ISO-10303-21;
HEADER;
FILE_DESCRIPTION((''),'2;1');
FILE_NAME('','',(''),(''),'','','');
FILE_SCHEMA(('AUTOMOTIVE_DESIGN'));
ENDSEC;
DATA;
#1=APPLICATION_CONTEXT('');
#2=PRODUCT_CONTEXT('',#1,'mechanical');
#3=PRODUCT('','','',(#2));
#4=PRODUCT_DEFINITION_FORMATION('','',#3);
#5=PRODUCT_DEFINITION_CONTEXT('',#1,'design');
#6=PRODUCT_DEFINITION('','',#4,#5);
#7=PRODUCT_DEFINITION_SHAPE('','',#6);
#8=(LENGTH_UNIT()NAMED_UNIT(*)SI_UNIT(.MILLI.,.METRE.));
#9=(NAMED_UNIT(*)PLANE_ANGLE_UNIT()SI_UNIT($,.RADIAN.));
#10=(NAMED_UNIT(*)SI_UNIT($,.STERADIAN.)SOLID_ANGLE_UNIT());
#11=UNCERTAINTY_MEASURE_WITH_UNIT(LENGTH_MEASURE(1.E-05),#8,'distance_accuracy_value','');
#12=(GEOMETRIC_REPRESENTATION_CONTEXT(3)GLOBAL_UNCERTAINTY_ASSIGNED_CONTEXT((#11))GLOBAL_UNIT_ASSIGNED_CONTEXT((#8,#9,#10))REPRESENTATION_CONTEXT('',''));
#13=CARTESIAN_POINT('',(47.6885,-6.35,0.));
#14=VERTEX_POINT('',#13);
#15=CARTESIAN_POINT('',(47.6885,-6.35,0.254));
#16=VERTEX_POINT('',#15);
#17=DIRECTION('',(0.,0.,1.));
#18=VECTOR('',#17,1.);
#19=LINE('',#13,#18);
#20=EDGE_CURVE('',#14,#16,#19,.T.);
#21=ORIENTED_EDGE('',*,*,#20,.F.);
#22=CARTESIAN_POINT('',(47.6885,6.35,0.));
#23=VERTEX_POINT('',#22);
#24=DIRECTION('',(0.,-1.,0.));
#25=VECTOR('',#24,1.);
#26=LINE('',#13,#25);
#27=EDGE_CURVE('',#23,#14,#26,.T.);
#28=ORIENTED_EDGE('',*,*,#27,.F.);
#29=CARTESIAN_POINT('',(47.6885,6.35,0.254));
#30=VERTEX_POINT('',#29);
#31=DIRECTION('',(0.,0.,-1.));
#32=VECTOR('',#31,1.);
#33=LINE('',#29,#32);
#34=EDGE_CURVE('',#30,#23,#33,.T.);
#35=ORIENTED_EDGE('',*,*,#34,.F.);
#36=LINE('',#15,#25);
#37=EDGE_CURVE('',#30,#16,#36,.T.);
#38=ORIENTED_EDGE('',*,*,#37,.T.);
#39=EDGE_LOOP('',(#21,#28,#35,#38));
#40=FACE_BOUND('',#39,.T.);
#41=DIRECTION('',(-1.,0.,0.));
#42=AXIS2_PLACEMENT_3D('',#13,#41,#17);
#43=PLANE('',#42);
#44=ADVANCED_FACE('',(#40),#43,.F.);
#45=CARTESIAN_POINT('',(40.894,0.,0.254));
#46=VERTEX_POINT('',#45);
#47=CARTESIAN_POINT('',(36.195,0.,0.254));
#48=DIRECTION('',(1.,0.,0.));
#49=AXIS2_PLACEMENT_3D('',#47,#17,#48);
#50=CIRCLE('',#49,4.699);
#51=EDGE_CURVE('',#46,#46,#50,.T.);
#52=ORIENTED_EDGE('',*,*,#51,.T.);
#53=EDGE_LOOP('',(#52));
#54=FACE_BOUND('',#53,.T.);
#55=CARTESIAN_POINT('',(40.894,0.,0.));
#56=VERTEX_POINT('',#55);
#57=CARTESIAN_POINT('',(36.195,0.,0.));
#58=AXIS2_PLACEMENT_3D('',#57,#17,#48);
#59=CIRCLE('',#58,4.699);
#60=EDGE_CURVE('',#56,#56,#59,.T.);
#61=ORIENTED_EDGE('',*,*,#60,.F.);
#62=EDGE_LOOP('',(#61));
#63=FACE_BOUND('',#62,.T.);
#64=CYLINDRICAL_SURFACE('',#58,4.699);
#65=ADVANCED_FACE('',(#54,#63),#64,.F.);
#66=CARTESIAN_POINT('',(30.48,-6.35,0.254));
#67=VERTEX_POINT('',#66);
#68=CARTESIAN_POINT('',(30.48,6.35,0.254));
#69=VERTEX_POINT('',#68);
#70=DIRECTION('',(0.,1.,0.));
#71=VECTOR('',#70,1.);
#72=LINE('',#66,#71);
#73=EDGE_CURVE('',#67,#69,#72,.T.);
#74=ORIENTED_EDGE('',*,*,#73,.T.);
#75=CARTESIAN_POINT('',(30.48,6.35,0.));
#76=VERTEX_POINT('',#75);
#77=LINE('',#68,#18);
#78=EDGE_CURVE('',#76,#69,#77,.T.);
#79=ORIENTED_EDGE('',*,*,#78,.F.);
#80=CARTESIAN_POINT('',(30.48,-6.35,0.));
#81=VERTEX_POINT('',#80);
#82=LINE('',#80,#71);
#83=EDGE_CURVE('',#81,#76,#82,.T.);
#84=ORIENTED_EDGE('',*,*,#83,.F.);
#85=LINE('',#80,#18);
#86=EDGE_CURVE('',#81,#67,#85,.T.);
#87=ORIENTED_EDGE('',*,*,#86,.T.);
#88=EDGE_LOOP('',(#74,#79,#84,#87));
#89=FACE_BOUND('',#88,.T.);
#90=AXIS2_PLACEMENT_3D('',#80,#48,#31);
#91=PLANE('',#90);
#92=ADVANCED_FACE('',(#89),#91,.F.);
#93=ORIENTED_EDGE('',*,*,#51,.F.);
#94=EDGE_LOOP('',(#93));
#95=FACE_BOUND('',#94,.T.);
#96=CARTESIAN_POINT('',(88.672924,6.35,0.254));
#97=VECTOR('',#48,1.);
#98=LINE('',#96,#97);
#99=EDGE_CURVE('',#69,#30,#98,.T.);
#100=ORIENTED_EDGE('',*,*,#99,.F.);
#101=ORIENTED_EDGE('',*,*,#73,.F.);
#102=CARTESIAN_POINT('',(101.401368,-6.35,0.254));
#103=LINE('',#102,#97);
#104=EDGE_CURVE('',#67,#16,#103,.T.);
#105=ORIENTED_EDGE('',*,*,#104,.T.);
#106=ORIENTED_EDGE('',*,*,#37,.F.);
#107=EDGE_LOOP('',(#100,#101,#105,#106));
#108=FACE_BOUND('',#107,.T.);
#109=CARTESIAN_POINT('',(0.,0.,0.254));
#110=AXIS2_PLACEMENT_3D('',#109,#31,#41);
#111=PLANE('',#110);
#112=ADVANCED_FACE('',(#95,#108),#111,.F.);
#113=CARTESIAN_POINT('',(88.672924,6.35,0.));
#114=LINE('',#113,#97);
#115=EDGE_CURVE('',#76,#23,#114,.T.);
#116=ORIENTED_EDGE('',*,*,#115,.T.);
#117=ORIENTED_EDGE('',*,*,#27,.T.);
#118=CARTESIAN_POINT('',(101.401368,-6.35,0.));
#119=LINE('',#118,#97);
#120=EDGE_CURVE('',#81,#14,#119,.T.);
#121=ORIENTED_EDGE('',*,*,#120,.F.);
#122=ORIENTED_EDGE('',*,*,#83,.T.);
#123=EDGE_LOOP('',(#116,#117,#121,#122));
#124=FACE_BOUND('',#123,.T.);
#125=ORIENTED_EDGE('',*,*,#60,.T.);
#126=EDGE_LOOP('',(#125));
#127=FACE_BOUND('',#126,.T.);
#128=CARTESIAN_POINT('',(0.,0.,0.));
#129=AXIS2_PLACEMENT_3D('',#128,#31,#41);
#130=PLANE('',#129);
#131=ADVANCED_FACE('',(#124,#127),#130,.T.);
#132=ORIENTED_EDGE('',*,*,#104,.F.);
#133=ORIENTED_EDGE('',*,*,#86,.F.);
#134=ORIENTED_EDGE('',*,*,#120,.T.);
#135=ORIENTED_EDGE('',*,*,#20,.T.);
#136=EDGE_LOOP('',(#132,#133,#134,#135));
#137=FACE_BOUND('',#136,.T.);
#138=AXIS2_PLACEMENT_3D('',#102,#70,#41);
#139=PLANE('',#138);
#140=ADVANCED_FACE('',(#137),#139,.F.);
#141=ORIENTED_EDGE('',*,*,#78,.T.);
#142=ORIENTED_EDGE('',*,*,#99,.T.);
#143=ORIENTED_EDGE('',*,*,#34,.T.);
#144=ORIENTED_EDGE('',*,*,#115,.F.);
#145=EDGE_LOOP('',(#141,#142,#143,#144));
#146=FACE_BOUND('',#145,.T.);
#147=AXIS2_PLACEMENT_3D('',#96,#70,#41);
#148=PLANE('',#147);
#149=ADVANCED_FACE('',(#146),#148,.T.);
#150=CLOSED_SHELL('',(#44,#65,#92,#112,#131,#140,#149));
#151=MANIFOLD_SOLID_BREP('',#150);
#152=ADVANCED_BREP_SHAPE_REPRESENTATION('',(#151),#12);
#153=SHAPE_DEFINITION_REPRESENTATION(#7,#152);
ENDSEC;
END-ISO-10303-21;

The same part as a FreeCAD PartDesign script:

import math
import FreeCAD as App
import Part
import Sketcher
from FreeCAD import Vector
Q = App.Units.Quantity


def add_polygon(sketch, points):
    """Adds a closed chain of lines whose ends are joined by coincident constraints."""
    first, n = sketch.GeometryCount, len(points)
    for a, b in zip(points, points[1:] + points[:1]):
        sketch.addGeometry(Part.LineSegment(App.Vector(*a, 0), App.Vector(*b, 0)), False)
    for i in range(n):
        sketch.addConstraint(Sketcher.Constraint("Coincident", first + i, 2, first + (i + 1) % n, 1))

doc = App.newDocument("Part")
body = doc.addObject("PartDesign::Body", "Body")

# Sketch on XY plane
sketch1 = body.newObject("Sketcher::SketchObject", "Sketch")
sketch1.AttachmentSupport = (doc.getObject("XY_Plane"), [""])
sketch1.MapMode = "FlatFace"
sketch1.addGeometry([
    Part.LineSegment(Vector(67.211467, 76.191723, 0), Vector(8.696654, 17.67691, 0)),  # 0
    Part.LineSegment(Vector(8.696654, 17.67691, 0), Vector(7.228955, 14.133571, 0)),  # 1
    Part.ArcOfCircle(Part.Circle(Vector(0, 0, 0), Vector(0, 0, 1), 15.875), math.radians(-17.911434), math.radians(62.911434)),  # 2
    Part.LineSegment(Vector(15.105587, -4.882301, 0), Vector(18.648926, -6.35, 0)),  # 3
    Part.LineSegment(Vector(18.648926, -6.35, 0), Vector(101.401368, -6.35, 0)),  # 4
    Part.ArcOfCircle(Part.Circle(Vector(0, 0, 0), Vector(0, 0, 1), 101.6), math.radians(-3.583322), math.radians(48.583322)),  # 5
    Part.ArcOfCircle(Part.Circle(Vector(0, 0, 0), Vector(0, 0, 1), 88.9), math.radians(4.096044), math.radians(40.903956)),  # 6
    Part.LineSegment(Vector(88.672924, 6.35, 0), Vector(27.860512, 6.35, 0)),  # 7
    Part.ArcOfCircle(Part.Circle(Vector(0, 0, 0), Vector(0, 0, 1), 28.575), math.radians(12.839588), math.radians(32.160412)),  # 8
    Part.LineSegment(Vector(24.190485, 15.210229, 0), Vector(67.191354, 58.211098, 0)),  # 9
], False)
sketch1.addConstraint([
    Sketcher.Constraint("Coincident", 0, 2, 1, 1),
    Sketcher.Constraint("Coincident", 1, 2, 2, 2),
    Sketcher.Constraint("Coincident", 2, 1, 3, 1),
    Sketcher.Constraint("Coincident", 3, 2, 4, 1),
    Sketcher.Constraint("Coincident", 4, 2, 5, 1),
    Sketcher.Constraint("Coincident", 5, 2, 0, 1),
    Sketcher.Constraint("Coincident", 6, 1, 7, 1),
    Sketcher.Constraint("Coincident", 7, 2, 8, 1),
    Sketcher.Constraint("Coincident", 8, 2, 9, 1),
    Sketcher.Constraint("Coincident", 9, 2, 6, 2),
    Sketcher.Constraint("Horizontal", 4),
    Sketcher.Constraint("Horizontal", 7),
    Sketcher.Constraint("Coincident", 2, 3, -1, 1),
    Sketcher.Constraint("Coincident", 5, 3, -1, 1),
    Sketcher.Constraint("Coincident", 6, 3, -1, 1),
    Sketcher.Constraint("Coincident", 8, 3, -1, 1),
    Sketcher.Constraint("Perpendicular", 1, 3),
    Sketcher.Constraint("Parallel", 0, 9),
    Sketcher.Constraint("Equal", 1, 3),
    Sketcher.Constraint("Radius", 5, Q("4 in")),
    Sketcher.Constraint("Radius", 6, Q("3.5 in")),
    Sketcher.Constraint("Angle", 0, Q("-135 deg")),
    Sketcher.Constraint("Radius", 2, Q("0.625 in")),
    Sketcher.Constraint("Radius", 8, Q("1.125 in")),
    Sketcher.Constraint("Angle", 1, Q("-112.5 deg")),
    Sketcher.Constraint("DistanceY", 4, 2, 6, 1, Q("0.5 in")),
    Sketcher.Constraint("DistanceY", 3, 2, -1, 1, Q("0.25 in")),
    Sketcher.Constraint("DistanceY", 2, 1, -1, 1, 4.882301),
    Sketcher.Constraint("DistanceY", -1, 1, 9, 2, 58.211098),
    Sketcher.Constraint("DistanceX", 5, 2, 4, 2, 34.189901),
])
pad1 = body.newObject("PartDesign::Pad", "Pad")
pad1.Profile = sketch1
pad1.Length = Q("0.01 in")

# Sketch on XY plane
sketch2 = body.newObject("Sketcher::SketchObject", "Sketch001")
sketch2.AttachmentSupport = (doc.getObject("XY_Plane"), [""])
sketch2.MapMode = "FlatFace"
sketch2.AttachmentOffset = App.Placement(Vector(0, 0, 0.01 * 25.4), App.Rotation())
sketch2.addGeometry([
    Part.Circle(Vector(22.225, 0, 0), Vector(0, 0, 1), 4.699),  # 0
    Part.Circle(Vector(36.195, 0, 0), Vector(0, 0, 1), 4.699),  # 1
    Part.Circle(Vector(61.722, 0, 0), Vector(0, 0, 1), 4.699),  # 2
    Part.Circle(Vector(75.692, 0, 0), Vector(0, 0, 1), 4.699),  # 3
    Part.Circle(Vector(95.25, 0, 0), Vector(0, 0, 1), 4.699),  # 4
    Part.Circle(Vector(15.715448, 15.715448, 0), Vector(0, 0, 1), 4.699),  # 5
    Part.Circle(Vector(25.59373, 25.59373, 0), Vector(0, 0, 1), 4.699),  # 6
    Part.Circle(Vector(43.644045, 43.644045, 0), Vector(0, 0, 1), 4.699),  # 7
    Part.Circle(Vector(53.522326, 53.522326, 0), Vector(0, 0, 1), 4.699),  # 8
    Part.Circle(Vector(92.004435, 24.652514, 0), Vector(0, 0, 1), 4.699),  # 9
    Part.Circle(Vector(82.48892, 47.625, 0), Vector(0, 0, 1), 4.699),  # 10
    Part.Circle(Vector(67.351921, 67.351921, 0), Vector(0, 0, 1), 4.699),  # 11
], False)
sketch2.addConstraint([
    Sketcher.Constraint("Equal", 0, 1),
    Sketcher.Constraint("Equal", 1, 2),
    Sketcher.Constraint("Equal", 2, 3),
    Sketcher.Constraint("Equal", 3, 4),
    Sketcher.Constraint("Equal", 4, 5),
    Sketcher.Constraint("Equal", 5, 6),
    Sketcher.Constraint("Equal", 6, 7),
    Sketcher.Constraint("Equal", 7, 8),
    Sketcher.Constraint("Equal", 8, 9),
    Sketcher.Constraint("Equal", 9, 10),
    Sketcher.Constraint("Equal", 10, 11),
    Sketcher.Constraint("PointOnObject", 0, 3, -1),
    Sketcher.Constraint("PointOnObject", 1, 3, -1),
    Sketcher.Constraint("PointOnObject", 2, 3, -1),
    Sketcher.Constraint("PointOnObject", 3, 3, -1),
    Sketcher.Constraint("PointOnObject", 4, 3, -1),
    Sketcher.Constraint("Diameter", 0, Q("0.37 in")),
    Sketcher.Constraint("DistanceX", -1, 1, 2, 3, Q("2.43 in")),
    Sketcher.Constraint("DistanceX", -1, 1, 3, 3, Q("2.98 in")),
    Sketcher.Constraint("DistanceX", -1, 1, 4, 3, Q("3.75 in")),
    Sketcher.Constraint("DistanceX", 0, 3, 1, 3, Q("0.55 in")),
    Sketcher.Constraint("DistanceX", -1, 1, 0, 3, Q("0.875 in")),
    Sketcher.Constraint("DistanceY", -1, 1, 10, 3, Q("1.875 in")),
    Sketcher.Constraint("DistanceX", 11, 3, 10, 3, 15.136999),
    Sketcher.Constraint("DistanceX", -1, 1, 5, 3, 15.715448),
    Sketcher.Constraint("DistanceY", -1, 1, 5, 3, 15.715448),
    Sketcher.Constraint("DistanceX", -1, 1, 6, 3, 25.59373),
    Sketcher.Constraint("DistanceY", -1, 1, 6, 3, 25.59373),
    Sketcher.Constraint("DistanceX", -1, 1, 10, 3, 82.48892),
    Sketcher.Constraint("DistanceY", -1, 1, 11, 3, 67.351921),
    Sketcher.Constraint("DistanceX", 7, 3, 8, 3, 9.878282),
    Sketcher.Constraint("DistanceY", 7, 3, 8, 3, 9.878282),
    Sketcher.Constraint("DistanceX", 5, 3, 8, 3, 37.806878),
    Sketcher.Constraint("DistanceY", 5, 3, 8, 3, 37.806878),
    Sketcher.Constraint("DistanceX", 8, 3, 9, 3, 38.482108),
    Sketcher.Constraint("DistanceY", 9, 3, 7, 3, 18.991531),
])
pocket1 = body.newObject("PartDesign::Pocket", "Pocket")
pocket1.Profile = sketch2
pocket1.Type = "ThroughAll"

# Sketch on XY plane
sketch3 = body.newObject("Sketcher::SketchObject", "Sketch002")
sketch3.AttachmentSupport = (doc.getObject("XY_Plane"), [""])
sketch3.MapMode = "FlatFace"
sketch3.AttachmentOffset = App.Placement(Vector(0, 0, 0.01 * 25.4), App.Rotation())
add_polygon(sketch3, [(17.062487, 26.042743), (15.266435, 24.246692), (15.715448, 23.797679), (17.511499, 25.59373)])  # lines 0-3
add_polygon(sketch3, [(44.991083, 53.971339), (43.195032, 52.175288), (43.644045, 51.726275), (45.440096, 53.522326)])  # lines 4-7
add_polygon(sketch3, [(27.94, -5.715), (27.94, -6.35), (30.48, -6.35), (30.48, -5.715)])  # lines 8-11
add_polygon(sketch3, [(67.437, -5.715), (67.437, -6.35), (69.977, -6.35), (69.977, -5.715)])  # lines 12-15
add_polygon(sketch3, [(31.026785, 40.007041), (29.230734, 38.21099), (29.679746, 37.761977), (31.475798, 39.558028)])  # lines 16-19
add_polygon(sketch3, [(56.845021, 65.825277), (55.04897, 64.029226), (55.497983, 63.580213), (57.294034, 65.376265)])  # lines 20-23
add_polygon(sketch3, [(47.6885, -5.715), (47.6885, -6.35), (50.2285, -6.35), (50.2285, -5.715)])  # lines 24-27
add_polygon(sketch3, [(84.201, -5.715), (84.201, -6.35), (86.741, -6.35), (86.741, -5.715)])  # lines 28-31
add_polygon(sketch3, [(99.935462, 14.437712), (100.266999, 11.919442), (101.526134, 12.08521), (101.194597, 14.60348)])  # lines 32-35
add_polygon(sketch3, [(93.765505, 37.464306), (94.938832, 37.950314), (93.966816, 40.296968), (92.793489, 39.81096)])  # lines 36-39
add_polygon(sketch3, [(79.327793, 62.471156), (80.874047, 60.456039), (81.881606, 61.229166), (80.335352, 63.244283)])  # lines 40-43
add_polygon(sketch3, [(13.593916, 7.005423), (14.565932, 4.658769), (15.739259, 5.144776), (14.767243, 7.49143)])  # lines 44-47
sketch3.addConstraint([
    Sketcher.Constraint("Vertical", 8),
    Sketcher.Constraint("Horizontal", 9),
    Sketcher.Constraint("Vertical", 10),
    Sketcher.Constraint("Horizontal", 11),
    Sketcher.Constraint("Vertical", 12),
    Sketcher.Constraint("Horizontal", 13),
    Sketcher.Constraint("Vertical", 14),
    Sketcher.Constraint("Horizontal", 15),
    Sketcher.Constraint("Vertical", 24),
    Sketcher.Constraint("Horizontal", 25),
    Sketcher.Constraint("Vertical", 26),
    Sketcher.Constraint("Horizontal", 27),
    Sketcher.Constraint("Vertical", 28),
    Sketcher.Constraint("Horizontal", 29),
    Sketcher.Constraint("Vertical", 30),
    Sketcher.Constraint("Horizontal", 31),
    Sketcher.Constraint("Perpendicular", 0, 1),
    Sketcher.Constraint("Perpendicular", 1, 2),
    Sketcher.Constraint("Perpendicular", 2, 3),
    Sketcher.Constraint("Perpendicular", 3, 4),
    Sketcher.Constraint("Perpendicular", 4, 5),
    Sketcher.Constraint("Perpendicular", 5, 6),
    Sketcher.Constraint("Perpendicular", 6, 7),
    Sketcher.Constraint("Perpendicular", 7, 16),
    Sketcher.Constraint("Perpendicular", 16, 17),
    Sketcher.Constraint("Perpendicular", 17, 18),
    Sketcher.Constraint("Perpendicular", 18, 19),
    Sketcher.Constraint("Perpendicular", 19, 20),
    Sketcher.Constraint("Perpendicular", 20, 21),
    Sketcher.Constraint("Perpendicular", 21, 22),
    Sketcher.Constraint("Perpendicular", 22, 23),
    Sketcher.Constraint("Perpendicular", 32, 33),
    Sketcher.Constraint("Perpendicular", 33, 34),
    Sketcher.Constraint("Perpendicular", 34, 35),
    Sketcher.Constraint("Perpendicular", 36, 37),
    Sketcher.Constraint("Perpendicular", 37, 38),
    Sketcher.Constraint("Perpendicular", 38, 39),
    Sketcher.Constraint("Perpendicular", 40, 41),
    Sketcher.Constraint("Perpendicular", 41, 42),
    Sketcher.Constraint("Perpendicular", 42, 43),
    Sketcher.Constraint("Parallel", 39, 44),
    Sketcher.Constraint("Perpendicular", 44, 45),
    Sketcher.Constraint("Perpendicular", 45, 46),
    Sketcher.Constraint("Perpendicular", 46, 47),
    Sketcher.Constraint("Horizontal", 9, 2, 12, 2),
    Sketcher.Constraint("Horizontal", 11, 2, 14, 2),
    Sketcher.Constraint("Horizontal", 13, 2, 24, 2),
    Sketcher.Constraint("Horizontal", 15, 2, 26, 2),
    Sketcher.Constraint("Horizontal", 25, 2, 28, 2),
    Sketcher.Constraint("Horizontal", 27, 2, 30, 2),
    Sketcher.Constraint("Equal", 11, 13),
    Sketcher.Constraint("Equal", 15, 25),
    Sketcher.Constraint("Equal", 27, 29),
    Sketcher.Constraint("Equal", 2, 4),
    Sketcher.Constraint("Equal", 3, 5),
    Sketcher.Constraint("Equal", 6, 16),
    Sketcher.Constraint("Equal", 7, 17),
    Sketcher.Constraint("Equal", 18, 20),
    Sketcher.Constraint("Equal", 19, 21),
    Sketcher.Constraint("Equal", 22, 32),
    Sketcher.Constraint("Equal", 35, 36),
    Sketcher.Constraint("Equal", 34, 37),
    Sketcher.Constraint("Equal", 39, 40),
    Sketcher.Constraint("Equal", 38, 41),
    Sketcher.Constraint("Equal", 42, 44),
    Sketcher.Constraint("Equal", 43, 45),
    Sketcher.Constraint("DistanceX", 9, 1, 9, 2, Q("0.1 in")),
    Sketcher.Constraint("Angle", 0, Q("-135 deg")),
    Sketcher.Constraint("Distance", 0, Q("0.1 in")),
    Sketcher.Constraint("DistanceX", -1, 1, 8, 2, Q("1.1 in")),
    Sketcher.Constraint("Angle", 32, Q("-82.5 deg")),
    Sketcher.Constraint("Angle", 36, Q("22.5 deg")),
    Sketcher.Constraint("Angle", 40, Q("-52.5 deg")),
    Sketcher.Constraint("Distance", 33, Q("0.05 in")),
    Sketcher.Constraint("DistanceY", 8, 2, 8, 1, Q("0.025 in")),
    Sketcher.Constraint("DistanceY", 8, 2, -1, 1, Q("0.25 in")),
    Sketcher.Constraint("DistanceX", 13, 2, 28, 2, Q("0.56 in")),
    Sketcher.Constraint("Distance", 1, Q("0.025 in")),
    Sketcher.Constraint("DistanceX", -1, 1, 12, 2, Q("2.655 in")),
    Sketcher.Constraint("DistanceX", -1, 1, 24, 2, Q("1.8775 in")),
    Sketcher.Constraint("DistanceX", -1, 1, 2, 2, 17.511499),
    Sketcher.Constraint("DistanceX", -1, 1, 32, 2, 100.266999),
    Sketcher.Constraint("DistanceX", 16, 2, 4, 2, 13.964298),
    Sketcher.Constraint("DistanceY", 16, 2, 4, 2, 13.964298),
    Sketcher.Constraint("DistanceX", 0, 2, 16, 2, 13.964298),
    Sketcher.Constraint("DistanceY", 0, 2, 16, 2, 13.964298),
    Sketcher.Constraint("DistanceY", 6, 2, 20, 2, 10.5069),
    Sketcher.Constraint("DistanceX", 7, 2, 21, 2, 10.5069),
    Sketcher.Constraint("DistanceY", 35, 2, 36, 2, 23.512602),
    Sketcher.Constraint("DistanceX", 36, 2, 33, 2, 6.587302),
    Sketcher.Constraint("DistanceY", 37, 2, 41, 2, 20.932198),
    Sketcher.Constraint("DistanceY", 41, 2, 22, 2, 4.147099),
    Sketcher.Constraint("DistanceY", 46, 2, 2, 2, 18.102299),
    Sketcher.Constraint("DistanceY", -1, 1, 0, 2, 24.246692),
    Sketcher.Constraint("DistanceX", -1, 1, 42, 2, 80.335352),
    Sketcher.Constraint("DistanceX", -1, 1, 45, 2, 15.739259),
])
pocket2 = body.newObject("PartDesign::Pocket", "Pocket001")
pocket2.Profile = sketch3
pocket2.Type = "ThroughAll"

# Sketch on XY plane
sketch4 = body.newObject("Sketcher::SketchObject", "Sketch003")
sketch4.AttachmentSupport = (doc.getObject("XY_Plane"), [""])
sketch4.MapMode = "FlatFace"
sketch4.AttachmentOffset = App.Placement(Vector(0, 0, 0.01 * 25.4), App.Rotation())
add_polygon(sketch4, [(-6.309, 89.73), (-6.309, -19.888), (115.138, -19.888), (115.138, 89.73)])  # lines 0-3
add_polygon(sketch4, [(47.6885, -7.62), (30.48, -7.62), (30.48, 7.62), (47.6885, 7.62)])  # lines 4-7
sketch4.addConstraint([
    Sketcher.Constraint("Vertical", 0),
    Sketcher.Constraint("Horizontal", 1),
    Sketcher.Constraint("Vertical", 2),
    Sketcher.Constraint("Horizontal", 3),
    Sketcher.Constraint("Horizontal", 4),
    Sketcher.Constraint("Vertical", 5),
    Sketcher.Constraint("Horizontal", 6),
    Sketcher.Constraint("Vertical", 7),
    Sketcher.Constraint("DistanceY", 5, 1, 5, 2, Q("0.6 in")),
    Sketcher.Constraint("DistanceX", -1, 1, 4, 2, Q("1.2 in")),
    Sketcher.Constraint("DistanceY", 4, 2, -1, 1, Q("0.3 in")),
    Sketcher.Constraint("DistanceX", 4, 2, 4, 1, Q("0.6775 in")),
    Sketcher.Constraint("DistanceX", 1, 1, 1, 2, 121.447),
    Sketcher.Constraint("DistanceY", 0, 2, 0, 1, 109.618),
    Sketcher.Constraint("DistanceX", 0, 2, -1, 1, 6.309),
    Sketcher.Constraint("DistanceY", 0, 2, -1, 1, 19.888),
])
pocket3 = body.newObject("PartDesign::Pocket", "Pocket002")
pocket3.Profile = sketch4
pocket3.Type = "ThroughAll"

doc.recompute()
